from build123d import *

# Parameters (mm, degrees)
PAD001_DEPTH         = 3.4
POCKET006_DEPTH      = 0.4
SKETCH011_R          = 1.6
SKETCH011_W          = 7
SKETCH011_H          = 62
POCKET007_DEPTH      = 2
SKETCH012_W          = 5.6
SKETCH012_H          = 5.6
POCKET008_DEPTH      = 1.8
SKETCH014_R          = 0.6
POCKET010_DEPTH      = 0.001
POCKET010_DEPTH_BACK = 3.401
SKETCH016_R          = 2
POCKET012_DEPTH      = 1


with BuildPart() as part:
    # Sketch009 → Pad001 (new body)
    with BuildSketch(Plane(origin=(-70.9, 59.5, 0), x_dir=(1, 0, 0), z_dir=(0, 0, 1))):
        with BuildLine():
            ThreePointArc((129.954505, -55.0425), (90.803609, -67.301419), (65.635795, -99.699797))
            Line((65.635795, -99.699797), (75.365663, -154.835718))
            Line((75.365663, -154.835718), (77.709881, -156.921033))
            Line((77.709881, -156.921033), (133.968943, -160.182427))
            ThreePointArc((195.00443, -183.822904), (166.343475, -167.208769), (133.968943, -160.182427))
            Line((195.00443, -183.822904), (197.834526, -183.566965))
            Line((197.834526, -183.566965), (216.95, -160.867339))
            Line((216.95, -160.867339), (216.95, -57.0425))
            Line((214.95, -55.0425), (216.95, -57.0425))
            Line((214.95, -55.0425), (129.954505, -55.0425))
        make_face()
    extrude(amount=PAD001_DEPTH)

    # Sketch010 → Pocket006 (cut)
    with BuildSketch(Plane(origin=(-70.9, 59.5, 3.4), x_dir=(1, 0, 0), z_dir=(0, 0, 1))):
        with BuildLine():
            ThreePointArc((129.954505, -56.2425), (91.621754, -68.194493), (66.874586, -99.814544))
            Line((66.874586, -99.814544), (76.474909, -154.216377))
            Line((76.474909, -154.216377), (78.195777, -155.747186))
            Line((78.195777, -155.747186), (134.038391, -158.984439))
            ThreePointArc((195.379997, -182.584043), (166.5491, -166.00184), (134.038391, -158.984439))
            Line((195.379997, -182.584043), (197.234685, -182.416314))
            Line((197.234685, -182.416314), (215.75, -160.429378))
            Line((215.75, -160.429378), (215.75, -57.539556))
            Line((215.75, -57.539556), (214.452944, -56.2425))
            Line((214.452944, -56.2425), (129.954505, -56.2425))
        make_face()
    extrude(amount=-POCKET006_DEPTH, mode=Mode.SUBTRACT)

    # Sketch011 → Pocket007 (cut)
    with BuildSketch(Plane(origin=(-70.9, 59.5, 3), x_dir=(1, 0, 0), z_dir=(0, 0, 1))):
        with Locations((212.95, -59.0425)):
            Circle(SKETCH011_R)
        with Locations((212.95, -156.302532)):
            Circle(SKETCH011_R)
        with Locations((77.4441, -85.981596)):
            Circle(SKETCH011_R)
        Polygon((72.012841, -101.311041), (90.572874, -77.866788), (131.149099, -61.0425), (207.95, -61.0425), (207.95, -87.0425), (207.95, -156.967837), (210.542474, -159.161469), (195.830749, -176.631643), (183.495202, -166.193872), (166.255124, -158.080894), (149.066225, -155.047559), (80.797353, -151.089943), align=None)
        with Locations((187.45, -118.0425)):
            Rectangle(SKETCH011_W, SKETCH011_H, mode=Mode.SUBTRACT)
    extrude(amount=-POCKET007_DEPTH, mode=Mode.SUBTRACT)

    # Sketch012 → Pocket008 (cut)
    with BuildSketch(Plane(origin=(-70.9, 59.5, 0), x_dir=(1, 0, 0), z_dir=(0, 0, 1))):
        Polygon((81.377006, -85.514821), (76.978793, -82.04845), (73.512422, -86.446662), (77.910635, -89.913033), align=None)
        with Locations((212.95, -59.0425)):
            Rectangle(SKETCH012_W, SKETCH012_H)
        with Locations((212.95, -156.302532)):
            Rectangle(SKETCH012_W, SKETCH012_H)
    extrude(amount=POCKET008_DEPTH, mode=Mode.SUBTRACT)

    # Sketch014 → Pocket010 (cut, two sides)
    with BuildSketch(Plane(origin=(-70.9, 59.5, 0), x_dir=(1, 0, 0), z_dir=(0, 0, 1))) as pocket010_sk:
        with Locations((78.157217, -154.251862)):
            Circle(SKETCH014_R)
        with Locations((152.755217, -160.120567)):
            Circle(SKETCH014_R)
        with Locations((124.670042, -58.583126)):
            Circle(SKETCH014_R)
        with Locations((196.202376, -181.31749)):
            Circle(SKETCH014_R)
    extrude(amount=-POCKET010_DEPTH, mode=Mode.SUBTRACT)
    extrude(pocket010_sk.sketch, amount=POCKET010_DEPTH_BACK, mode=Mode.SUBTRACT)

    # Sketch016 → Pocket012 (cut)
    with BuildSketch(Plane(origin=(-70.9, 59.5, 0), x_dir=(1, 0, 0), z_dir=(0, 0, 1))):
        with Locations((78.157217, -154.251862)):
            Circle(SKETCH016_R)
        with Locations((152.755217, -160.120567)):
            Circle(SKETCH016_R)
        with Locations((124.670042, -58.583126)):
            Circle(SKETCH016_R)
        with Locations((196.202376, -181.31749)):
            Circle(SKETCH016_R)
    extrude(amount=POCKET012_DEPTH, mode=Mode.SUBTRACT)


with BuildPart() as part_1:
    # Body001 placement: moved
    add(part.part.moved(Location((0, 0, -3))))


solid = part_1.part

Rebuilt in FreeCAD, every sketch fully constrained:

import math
import FreeCAD as App
import Part
import Sketcher

V = App.Vector
Q = App.Units.Quantity


def add_polygon(sketch, points):
    """Adds a closed chain of lines whose ends are joined by coincident constraints."""
    first, n = sketch.GeometryCount, len(points)
    for a, b in zip(points, points[1:] + points[:1]):
        sketch.addGeometry(Part.LineSegment(App.Vector(*a, 0), App.Vector(*b, 0)), False)
    for i in range(n):
        sketch.addConstraint(Sketcher.Constraint("Coincident", first + i, 2, first + (i + 1) % n, 1))

doc = App.newDocument("Part")
body = doc.addObject("PartDesign::Body", "Body")

# Sketch on XY plane
sketch1 = body.newObject("Sketcher::SketchObject", "Sketch")
sketch1.AttachmentSupport = (doc.getObject("XY_Plane"), [""])
sketch1.MapMode = "FlatFace"
sketch1.addGeometry(Part.ArcOfCircle(Part.Circle(V(59.1, -64.2, 0), V(0, 0, 1), 68.6), math.radians(90), math.radians(160)), False)
sketch1.addGeometry(Part.LineSegment(V(-5.3, -40.2, 0), V(4.5, -95.3, 0)), False)
sketch1.addGeometry(Part.LineSegment(V(4.5, -95.3, 0), V(6.8, -97.4, 0)), False)
sketch1.addGeometry(Part.LineSegment(V(6.8, -97.4, 0), V(63.1, -100.7, 0)), False)
sketch1.addGeometry(Part.ArcOfCircle(Part.Circle(V(56.9, -207.2, 0), V(0, 0, 1), 106.7), math.radians(51), math.radians(87)), False)
sketch1.addGeometry(Part.LineSegment(V(124.1, -124.3, 0), V(126.9, -124.1, 0)), False)
sketch1.addGeometry(Part.LineSegment(V(126.9, -124.1, 0), V(146.1, -101.4, 0)), False)
sketch1.addGeometry(Part.LineSegment(V(146.1, -101.4, 0), V(146.1, 2.5, 0)), False)
sketch1.addGeometry(Part.LineSegment(V(146.1, 2.5, 0), V(144.1, 4.5, 0)), False)
sketch1.addGeometry(Part.LineSegment(V(144.1, 4.5, 0), V(59.1, 4.5, 0)), False)
sketch1.addConstraint(Sketcher.Constraint("Coincident", 0, 2, 1, 1))
sketch1.addConstraint(Sketcher.Constraint("Coincident", 1, 2, 2, 1))
sketch1.addConstraint(Sketcher.Constraint("Coincident", 2, 2, 3, 1))
sketch1.addConstraint(Sketcher.Constraint("Tangent", 3, 2, 4, 2))
sketch1.addConstraint(Sketcher.Constraint("Coincident", 4, 1, 5, 1))
sketch1.addConstraint(Sketcher.Constraint("Coincident", 5, 2, 6, 1))
sketch1.addConstraint(Sketcher.Constraint("Coincident", 6, 2, 7, 1))
sketch1.addConstraint(Sketcher.Constraint("Coincident", 7, 2, 8, 1))
sketch1.addConstraint(Sketcher.Constraint("Coincident", 8, 2, 9, 1))
sketch1.addConstraint(Sketcher.Constraint("Tangent", 9, 2, 0, 1))
sketch1.addConstraint(Sketcher.Constraint("Vertical", 7))
sketch1.addConstraint(Sketcher.Constraint("Horizontal", 9))
sketch1.addConstraint(Sketcher.Constraint("Angle", 8, Q("135 deg")))
sketch1.addConstraint(Sketcher.Constraint("DistanceX", 8, 2, 7, 2, 2.0))
sketch1.addConstraint(Sketcher.Constraint("DistanceX", -1, 1, 6, 2, 146.05))
sketch1.addConstraint(Sketcher.Constraint("Radius", 0, 68.646907))
sketch1.addConstraint(Sketcher.Constraint("Radius", 4, 106.739533))
sketch1.addConstraint(Sketcher.Constraint("Distance", 2, 3.137498))
sketch1.addConstraint(Sketcher.Constraint("DistanceY", 7, 1, 7, 2, 103.824839))
sketch1.addConstraint(Sketcher.Constraint("DistanceY", -1, 1, 7, 2, 2.4575))
sketch1.addConstraint(Sketcher.Constraint("Distance", 6, 29.676158))
sketch1.addConstraint(Sketcher.Constraint("DistanceX", 9, 2, 9, 1, 84.995495))
sketch1.addConstraint(Sketcher.Constraint("DistanceX", -1, 1, 4, 3, 56.89151))
sketch1.addConstraint(Sketcher.Constraint("DistanceY", 1, 2, -1, 1, 95.335718))
sketch1.addConstraint(Sketcher.Constraint("DistanceX", -1, 1, 2, 2, 6.809881))
sketch1.addConstraint(Sketcher.Constraint("DistanceX", -1, 1, 4, 1, 124.10443))
sketch1.addConstraint(Sketcher.Constraint("DistanceX", 0, 2, 0, 3, 64.31871))
sketch1.addConstraint(Sketcher.Constraint("DistanceX", 0, 2, 1, 2, 9.729868))
sketch1.addConstraint(Sketcher.Constraint("DistanceY", 4, 3, 2, 2, 109.822021))
sketch1.addConstraint(Sketcher.Constraint("DistanceY", 4, 1, 5, 2, 0.255939))
pad1 = body.newObject("PartDesign::Pad", "Pad")
pad1.Profile = sketch1
pad1.Length = 3.4

# Sketch on XY plane
sketch2 = body.newObject("Sketcher::SketchObject", "Sketch001")
sketch2.AttachmentSupport = (doc.getObject("XY_Plane"), [""])
sketch2.MapMode = "FlatFace"
sketch2.AttachmentOffset = App.Placement(V(0, 0, 3.4), App.Rotation())
sketch2.addGeometry(Part.ArcOfCircle(Part.Circle(V(59.1, -64.2, 0), V(0, 0, 1), 67.4), math.radians(90), math.radians(159)), False)
sketch2.addGeometry(Part.LineSegment(V(-4, -40.3, 0), V(5.6, -94.7, 0)), False)
sketch2.addGeometry(Part.LineSegment(V(5.6, -94.7, 0), V(7.3, -96.2, 0)), False)
sketch2.addGeometry(Part.LineSegment(V(7.3, -96.2, 0), V(63.1, -99.5, 0)), False)
sketch2.addGeometry(Part.ArcOfCircle(Part.Circle(V(56.9, -207.2, 0), V(0, 0, 1), 107.9), math.radians(51), math.radians(87)), False)
sketch2.addGeometry(Part.LineSegment(V(124.5, -123.1, 0), V(126.3, -122.9, 0)), False)
sketch2.addGeometry(Part.LineSegment(V(126.3, -122.9, 0), V(144.8, -100.9, 0)), False)
sketch2.addGeometry(Part.LineSegment(V(144.8, -100.9, 0), V(144.8, 2, 0)), False)
sketch2.addGeometry(Part.LineSegment(V(144.8, 2, 0), V(143.6, 3.3, 0)), False)
sketch2.addGeometry(Part.LineSegment(V(143.6, 3.3, 0), V(59.1, 3.3, 0)), False)
sketch2.addConstraint(Sketcher.Constraint("Coincident", 0, 2, 1, 1))
sketch2.addConstraint(Sketcher.Constraint("Coincident", 1, 2, 2, 1))
sketch2.addConstraint(Sketcher.Constraint("Coincident", 2, 2, 3, 1))
sketch2.addConstraint(Sketcher.Constraint("Tangent", 3, 2, 4, 2))
sketch2.addConstraint(Sketcher.Constraint("Coincident", 4, 1, 5, 1))
sketch2.addConstraint(Sketcher.Constraint("Coincident", 5, 2, 6, 1))
sketch2.addConstraint(Sketcher.Constraint("Coincident", 6, 2, 7, 1))
sketch2.addConstraint(Sketcher.Constraint("Coincident", 7, 2, 8, 1))
sketch2.addConstraint(Sketcher.Constraint("Coincident", 8, 2, 9, 1))
sketch2.addConstraint(Sketcher.Constraint("Tangent", 9, 2, 0, 1))
sketch2.addConstraint(Sketcher.Constraint("Vertical", 7))
sketch2.addConstraint(Sketcher.Constraint("Horizontal", 9))
sketch2.addConstraint(Sketcher.Constraint("Angle", 8, Q("135 deg")))
sketch2.addConstraint(Sketcher.Constraint("DistanceX", -1, 1, 6, 2, 144.85))
sketch2.addConstraint(Sketcher.Constraint("Radius", 0, 67.446906))
sketch2.addConstraint(Sketcher.Constraint("Radius", 4, 107.939503))
sketch2.addConstraint(Sketcher.Constraint("DistanceX", 9, 2, 9, 1, 84.498439))
sketch2.addConstraint(Sketcher.Constraint("DistanceY", 7, 1, 7, 2, 102.889822))
sketch2.addConstraint(Sketcher.Constraint("DistanceY", -1, 1, 8, 2, 3.2575))
sketch2.addConstraint(Sketcher.Constraint("Distance", 3, 55.936369))
sketch2.addConstraint(Sketcher.Constraint("Distance", 6, 28.74443))
sketch2.addConstraint(Sketcher.Constraint("DistanceX", -1, 1, 4, 3, 56.891522))
sketch2.addConstraint(Sketcher.Constraint("DistanceX", -1, 1, 1, 2, 5.574909))
sketch2.addConstraint(Sketcher.Constraint("DistanceX", -1, 1, 3, 2, 63.138391))
sketch2.addConstraint(Sketcher.Constraint("DistanceY", 3, 2, -1, 1, 99.484439))
sketch2.addConstraint(Sketcher.Constraint("DistanceY", 6, 2, -1, 1, 100.929378))
sketch2.addConstraint(Sketcher.Constraint("DistanceX", 0, 2, 0, 3, 63.079919))
sketch2.addConstraint(Sketcher.Constraint("DistanceY", 1, 2, 0, 3, 30.526971))
sketch2.addConstraint(Sketcher.Constraint("DistanceX", 2, 2, 4, 1, 117.18422))
sketch2.addConstraint(Sketcher.Constraint("DistanceY", 4, 1, 5, 2, 0.167729))
pocket1 = body.newObject("PartDesign::Pocket", "Pocket")
pocket1.Profile = sketch2
pocket1.Length = 0.4

# Sketch on XY plane
sketch3 = body.newObject("Sketcher::SketchObject", "Sketch002")
sketch3.AttachmentSupport = (doc.getObject("XY_Plane"), [""])
sketch3.MapMode = "FlatFace"
sketch3.AttachmentOffset = App.Placement(V(0, 0, 3), App.Rotation())
sketch3.addGeometry(Part.Circle(V(142.1, 0.5, 0), V(0, 0, 1), 1.6), False)  # 0
sketch3.addGeometry(Part.Circle(V(142.1, -96.8, 0), V(0, 0, 1), 1.6), False)  # 1
sketch3.addGeometry(Part.Circle(V(6.5, -26.5, 0), V(0, 0, 1), 1.6), False)  # 2
add_polygon(sketch3, [(19.7, -18.4), (1.1, -41.8), (9.9, -91.6), (78.2, -95.5), (95.4, -98.6), (112.6, -106.7), (124.9, -117.1), (139.6, -99.7), (137.1, -97.5), (137.1, -1.5), (60.2, -1.5)])  # lines 3-13
add_polygon(sketch3, [(113, -89.5), (113, -27.5), (120, -27.5), (120, -89.5)])  # lines 14-17
sketch3.addConstraint(Sketcher.Constraint("Vertical", 11))
sketch3.addConstraint(Sketcher.Constraint("Horizontal", 12))
sketch3.addConstraint(Sketcher.Constraint("Vertical", 14))
sketch3.addConstraint(Sketcher.Constraint("Horizontal", 15))
sketch3.addConstraint(Sketcher.Constraint("Vertical", 16))
sketch3.addConstraint(Sketcher.Constraint("Horizontal", 17))
sketch3.addConstraint(Sketcher.Constraint("Equal", 0, 1))
sketch3.addConstraint(Sketcher.Constraint("Equal", 1, 2))
sketch3.addConstraint(Sketcher.Constraint("Parallel", 8, 10))
sketch3.addConstraint(Sketcher.Constraint("Vertical", 0, 3, 1, 3))
sketch3.addConstraint(Sketcher.Constraint("Diameter", 0, 3.2))
sketch3.addConstraint(Sketcher.Constraint("DistanceX", 15, 1, 15, 2, 7.0))
sketch3.addConstraint(Sketcher.Constraint("DistanceY", 14, 1, 14, 2, 62.0))
sketch3.addConstraint(Sketcher.Constraint("DistanceX", 10, 2, 1, 3, 5.0))
sketch3.addConstraint(Sketcher.Constraint("DistanceY", 11, 2, 0, 3, 2.0))
sketch3.addConstraint(Sketcher.Constraint("DistanceX", 14, 2, 11, 2, 24.0))
sketch3.addConstraint(Sketcher.Constraint("DistanceY", 14, 2, 11, 2, 26.0))
sketch3.addConstraint(Sketcher.Constraint("DistanceX", -1, 1, 0, 3, 142.05))
sketch3.addConstraint(Sketcher.Constraint("DistanceX", 12, 2, 12, 1, 76.800901))
sketch3.addConstraint(Sketcher.Constraint("DistanceX", 2, 3, 12, 2, 53.704999))
sketch3.addConstraint(Sketcher.Constraint("DistanceY", -1, 1, 0, 3, 0.4575))
sketch3.addConstraint(Sketcher.Constraint("DistanceX", -1, 1, 7, 2, 112.595202))
sketch3.addConstraint(Sketcher.Constraint("DistanceX", 5, 2, 6, 2, 17.188899))
sketch3.addConstraint(Sketcher.Constraint("DistanceY", 8, 2, 4, 2, 25.5417))
sketch3.addConstraint(Sketcher.Constraint("Distance", 5, 68.383489))
sketch3.addConstraint(Sketcher.Constraint("Distance", 9, 22.83948))
sketch3.addConstraint(Sketcher.Constraint("Distance", 10, 3.396019))
sketch3.addConstraint(Sketcher.Constraint("DistanceY", 11, 1, 11, 2, 95.925337))
sketch3.addConstraint(Sketcher.Constraint("DistanceY", 1, 3, -1, 1, 96.802532))
sketch3.addConstraint(Sketcher.Constraint("DistanceX", -1, 1, 3, 2, 1.112841))
sketch3.addConstraint(Sketcher.Constraint("DistanceY", 3, 2, -1, 1, 41.811041))
sketch3.addConstraint(Sketcher.Constraint("DistanceY", 5, 2, -1, 1, 95.547559))
sketch3.addConstraint(Sketcher.Constraint("DistanceY", 7, 2, -1, 1, 106.693872))
sketch3.addConstraint(Sketcher.Constraint("DistanceX", -1, 1, 8, 2, 124.930749))
sketch3.addConstraint(Sketcher.Constraint("DistanceY", 6, 2, 4, 2, 6.990951))
sketch3.addConstraint(Sketcher.Constraint("DistanceX", 4, 2, 7, 2, 102.697849))
sketch3.addConstraint(Sketcher.Constraint("DistanceX", 4, 2, 13, 2, 9.775521))
sketch3.addConstraint(Sketcher.Constraint("DistanceY", 5, 2, 13, 2, 77.180771))
sketch3.addConstraint(Sketcher.Constraint("DistanceY", 2, 3, -1, 1, 26.481596))
pocket2 = body.newObject("PartDesign::Pocket", "Pocket001")
pocket2.Profile = sketch3
pocket2.Length = 2

# Sketch on XY plane
sketch4 = body.newObject("Sketcher::SketchObject", "Sketch003")
sketch4.AttachmentSupport = (doc.getObject("XY_Plane"), [""])
sketch4.MapMode = "FlatFace"
add_polygon(sketch4, [(10, -26), (6, -23), (3, -27), (7, -30)])  # lines 0-3
add_polygon(sketch4, [(139, 3), (139, -2), (145, -2), (145, 3)])  # lines 4-7
add_polygon(sketch4, [(139, -94), (139, -100), (145, -100), (145, -94)])  # lines 8-11
sketch4.addConstraint(Sketcher.Constraint("Vertical", 4))
sketch4.addConstraint(Sketcher.Constraint("Horizontal", 5))
sketch4.addConstraint(Sketcher.Constraint("Vertical", 6))
sketch4.addConstraint(Sketcher.Constraint("Horizontal", 7))
sketch4.addConstraint(Sketcher.Constraint("Vertical", 8))
sketch4.addConstraint(Sketcher.Constraint("Horizontal", 9))
sketch4.addConstraint(Sketcher.Constraint("Vertical", 10))
sketch4.addConstraint(Sketcher.Constraint("Horizontal", 11))
sketch4.addConstraint(Sketcher.Constraint("Perpendicular", 0, 1))
sketch4.addConstraint(Sketcher.Constraint("Perpendicular", 1, 2))
sketch4.addConstraint(Sketcher.Constraint("Perpendicular", 2, 3))
sketch4.addConstraint(Sketcher.Constraint("Vertical", 7, 2, 8, 2))
sketch4.addConstraint(Sketcher.Constraint("Vertical", 6, 2, 9, 2))
sketch4.addConstraint(Sketcher.Constraint("Equal", 11, 4))
sketch4.addConstraint(Sketcher.Constraint("Equal", 6, 8))
sketch4.addConstraint(Sketcher.Constraint("Equal", 0, 1))
sketch4.addConstraint(Sketcher.Constraint("DistanceX", 5, 1, 5, 2, 5.6))
sketch4.addConstraint(Sketcher.Constraint("Distance", 0, 5.6))
sketch4.addConstraint(Sketcher.Constraint("DistanceX", -1, 1, 4, 2, 139.25))
sketch4.addConstraint(Sketcher.Constraint("DistanceY", 4, 2, -1, 1, 2.3425))
sketch4.addConstraint(Sketcher.Constraint("DistanceY", 0, 2, -1, 1, 22.54845))
sketch4.addConstraint(Sketcher.Constraint("DistanceX", -1, 1, 1, 2, 2.612422))
sketch4.addConstraint(Sketcher.Constraint("DistanceY", 1, 2, -1, 1, 26.946662))
sketch4.addConstraint(Sketcher.Constraint("DistanceY", 8, 2, -1, 1, 99.602532))
pocket3 = body.newObject("PartDesign::Pocket", "Pocket002")
pocket3.Profile = sketch4
pocket3.Length = 1.8
pocket3.Reversed = True

# Sketch on XY plane
sketch5 = body.newObject("Sketcher::SketchObject", "Sketch004")
sketch5.AttachmentSupport = (doc.getObject("XY_Plane"), [""])
sketch5.MapMode = "FlatFace"
sketch5.addGeometry(Part.Circle(V(7.3, -94.8, 0), V(0, 0, 1), 0.6), False)
sketch5.addGeometry(Part.Circle(V(81.9, -100.6, 0), V(0, 0, 1), 0.6), False)
sketch5.addGeometry(Part.Circle(V(53.8, 0.9, 0), V(0, 0, 1), 0.6), False)
sketch5.addGeometry(Part.Circle(V(125.3, -121.8, 0), V(0, 0, 1), 0.6), False)
sketch5.addConstraint(Sketcher.Constraint("Equal", 0, 1))
sketch5.addConstraint(Sketcher.Constraint("Equal", 1, 2))
sketch5.addConstraint(Sketcher.Constraint("Equal", 2, 3))
sketch5.addConstraint(Sketcher.Constraint("Diameter", 0, 1.2))
sketch5.addConstraint(Sketcher.Constraint("DistanceX", 0, 3, 1, 3, 74.598))
sketch5.addConstraint(Sketcher.Constraint("DistanceX", -1, 1, 2, 3, 53.770042))
sketch5.addConstraint(Sketcher.Constraint("DistanceY", 3, 3, -1, 1, 121.81749))
sketch5.addConstraint(Sketcher.Constraint("DistanceY", 1, 3, 2, 3, 101.537441))
sketch5.addConstraint(Sketcher.Constraint("DistanceX", 1, 3, 3, 3, 43.447159))
sketch5.addConstraint(Sketcher.Constraint("DistanceY", 3, 3, 0, 3, 27.065628))
sketch5.addConstraint(Sketcher.Constraint("DistanceX", -1, 1, 0, 3, 7.257217))
sketch5.addConstraint(Sketcher.Constraint("DistanceY", 1, 3, -1, 1, 100.620567))
pocket4 = body.newObject("PartDesign::Pocket", "Pocket003")
pocket4.Profile = sketch5
pocket4.Type = "ThroughAll"
pocket4.Midplane = True

# Sketch on XY plane
sketch6 = body.newObject("Sketcher::SketchObject", "Sketch005")
sketch6.AttachmentSupport = (doc.getObject("XY_Plane"), [""])
sketch6.MapMode = "FlatFace"
sketch6.addGeometry(Part.Circle(V(7.3, -94.8, 0), V(0, 0, 1), 2), False)
sketch6.addGeometry(Part.Circle(V(81.9, -100.6, 0), V(0, 0, 1), 2), False)
sketch6.addGeometry(Part.Circle(V(53.8, 0.9, 0), V(0, 0, 1), 2), False)
sketch6.addGeometry(Part.Circle(V(125.3, -121.8, 0), V(0, 0, 1), 2), False)
sketch6.addConstraint(Sketcher.Constraint("Equal", 0, 1))
sketch6.addConstraint(Sketcher.Constraint("Equal", 1, 2))
sketch6.addConstraint(Sketcher.Constraint("Equal", 2, 3))
sketch6.addConstraint(Sketcher.Constraint("Diameter", 0, 4.0))
sketch6.addConstraint(Sketcher.Constraint("DistanceX", 0, 3, 1, 3, 74.598))
sketch6.addConstraint(Sketcher.Constraint("DistanceX", -1, 1, 2, 3, 53.770042))
sketch6.addConstraint(Sketcher.Constraint("DistanceY", 3, 3, -1, 1, 121.81749))
sketch6.addConstraint(Sketcher.Constraint("DistanceY", 1, 3, 2, 3, 101.537441))
sketch6.addConstraint(Sketcher.Constraint("DistanceX", 1, 3, 3, 3, 43.447159))
sketch6.addConstraint(Sketcher.Constraint("DistanceY", 3, 3, 0, 3, 27.065628))
sketch6.addConstraint(Sketcher.Constraint("DistanceX", -1, 1, 0, 3, 7.257217))
sketch6.addConstraint(Sketcher.Constraint("DistanceY", 1, 3, -1, 1, 100.620567))
pocket5 = body.newObject("PartDesign::Pocket", "Pocket004")
pocket5.Profile = sketch6
pocket5.Length = 1
pocket5.Reversed = True
body2 = doc.addObject("PartDesign::Body", "Body001")
doc.recompute()

body.Placement = App.Placement(V(0, 0, -3), App.Rotation(V(0, 0, 1), 0))
boolean = body2.newObject("PartDesign::Boolean", "Boolean")
boolean.Type = "Fuse"
boolean.addObjects([body])

doc.recompute()
